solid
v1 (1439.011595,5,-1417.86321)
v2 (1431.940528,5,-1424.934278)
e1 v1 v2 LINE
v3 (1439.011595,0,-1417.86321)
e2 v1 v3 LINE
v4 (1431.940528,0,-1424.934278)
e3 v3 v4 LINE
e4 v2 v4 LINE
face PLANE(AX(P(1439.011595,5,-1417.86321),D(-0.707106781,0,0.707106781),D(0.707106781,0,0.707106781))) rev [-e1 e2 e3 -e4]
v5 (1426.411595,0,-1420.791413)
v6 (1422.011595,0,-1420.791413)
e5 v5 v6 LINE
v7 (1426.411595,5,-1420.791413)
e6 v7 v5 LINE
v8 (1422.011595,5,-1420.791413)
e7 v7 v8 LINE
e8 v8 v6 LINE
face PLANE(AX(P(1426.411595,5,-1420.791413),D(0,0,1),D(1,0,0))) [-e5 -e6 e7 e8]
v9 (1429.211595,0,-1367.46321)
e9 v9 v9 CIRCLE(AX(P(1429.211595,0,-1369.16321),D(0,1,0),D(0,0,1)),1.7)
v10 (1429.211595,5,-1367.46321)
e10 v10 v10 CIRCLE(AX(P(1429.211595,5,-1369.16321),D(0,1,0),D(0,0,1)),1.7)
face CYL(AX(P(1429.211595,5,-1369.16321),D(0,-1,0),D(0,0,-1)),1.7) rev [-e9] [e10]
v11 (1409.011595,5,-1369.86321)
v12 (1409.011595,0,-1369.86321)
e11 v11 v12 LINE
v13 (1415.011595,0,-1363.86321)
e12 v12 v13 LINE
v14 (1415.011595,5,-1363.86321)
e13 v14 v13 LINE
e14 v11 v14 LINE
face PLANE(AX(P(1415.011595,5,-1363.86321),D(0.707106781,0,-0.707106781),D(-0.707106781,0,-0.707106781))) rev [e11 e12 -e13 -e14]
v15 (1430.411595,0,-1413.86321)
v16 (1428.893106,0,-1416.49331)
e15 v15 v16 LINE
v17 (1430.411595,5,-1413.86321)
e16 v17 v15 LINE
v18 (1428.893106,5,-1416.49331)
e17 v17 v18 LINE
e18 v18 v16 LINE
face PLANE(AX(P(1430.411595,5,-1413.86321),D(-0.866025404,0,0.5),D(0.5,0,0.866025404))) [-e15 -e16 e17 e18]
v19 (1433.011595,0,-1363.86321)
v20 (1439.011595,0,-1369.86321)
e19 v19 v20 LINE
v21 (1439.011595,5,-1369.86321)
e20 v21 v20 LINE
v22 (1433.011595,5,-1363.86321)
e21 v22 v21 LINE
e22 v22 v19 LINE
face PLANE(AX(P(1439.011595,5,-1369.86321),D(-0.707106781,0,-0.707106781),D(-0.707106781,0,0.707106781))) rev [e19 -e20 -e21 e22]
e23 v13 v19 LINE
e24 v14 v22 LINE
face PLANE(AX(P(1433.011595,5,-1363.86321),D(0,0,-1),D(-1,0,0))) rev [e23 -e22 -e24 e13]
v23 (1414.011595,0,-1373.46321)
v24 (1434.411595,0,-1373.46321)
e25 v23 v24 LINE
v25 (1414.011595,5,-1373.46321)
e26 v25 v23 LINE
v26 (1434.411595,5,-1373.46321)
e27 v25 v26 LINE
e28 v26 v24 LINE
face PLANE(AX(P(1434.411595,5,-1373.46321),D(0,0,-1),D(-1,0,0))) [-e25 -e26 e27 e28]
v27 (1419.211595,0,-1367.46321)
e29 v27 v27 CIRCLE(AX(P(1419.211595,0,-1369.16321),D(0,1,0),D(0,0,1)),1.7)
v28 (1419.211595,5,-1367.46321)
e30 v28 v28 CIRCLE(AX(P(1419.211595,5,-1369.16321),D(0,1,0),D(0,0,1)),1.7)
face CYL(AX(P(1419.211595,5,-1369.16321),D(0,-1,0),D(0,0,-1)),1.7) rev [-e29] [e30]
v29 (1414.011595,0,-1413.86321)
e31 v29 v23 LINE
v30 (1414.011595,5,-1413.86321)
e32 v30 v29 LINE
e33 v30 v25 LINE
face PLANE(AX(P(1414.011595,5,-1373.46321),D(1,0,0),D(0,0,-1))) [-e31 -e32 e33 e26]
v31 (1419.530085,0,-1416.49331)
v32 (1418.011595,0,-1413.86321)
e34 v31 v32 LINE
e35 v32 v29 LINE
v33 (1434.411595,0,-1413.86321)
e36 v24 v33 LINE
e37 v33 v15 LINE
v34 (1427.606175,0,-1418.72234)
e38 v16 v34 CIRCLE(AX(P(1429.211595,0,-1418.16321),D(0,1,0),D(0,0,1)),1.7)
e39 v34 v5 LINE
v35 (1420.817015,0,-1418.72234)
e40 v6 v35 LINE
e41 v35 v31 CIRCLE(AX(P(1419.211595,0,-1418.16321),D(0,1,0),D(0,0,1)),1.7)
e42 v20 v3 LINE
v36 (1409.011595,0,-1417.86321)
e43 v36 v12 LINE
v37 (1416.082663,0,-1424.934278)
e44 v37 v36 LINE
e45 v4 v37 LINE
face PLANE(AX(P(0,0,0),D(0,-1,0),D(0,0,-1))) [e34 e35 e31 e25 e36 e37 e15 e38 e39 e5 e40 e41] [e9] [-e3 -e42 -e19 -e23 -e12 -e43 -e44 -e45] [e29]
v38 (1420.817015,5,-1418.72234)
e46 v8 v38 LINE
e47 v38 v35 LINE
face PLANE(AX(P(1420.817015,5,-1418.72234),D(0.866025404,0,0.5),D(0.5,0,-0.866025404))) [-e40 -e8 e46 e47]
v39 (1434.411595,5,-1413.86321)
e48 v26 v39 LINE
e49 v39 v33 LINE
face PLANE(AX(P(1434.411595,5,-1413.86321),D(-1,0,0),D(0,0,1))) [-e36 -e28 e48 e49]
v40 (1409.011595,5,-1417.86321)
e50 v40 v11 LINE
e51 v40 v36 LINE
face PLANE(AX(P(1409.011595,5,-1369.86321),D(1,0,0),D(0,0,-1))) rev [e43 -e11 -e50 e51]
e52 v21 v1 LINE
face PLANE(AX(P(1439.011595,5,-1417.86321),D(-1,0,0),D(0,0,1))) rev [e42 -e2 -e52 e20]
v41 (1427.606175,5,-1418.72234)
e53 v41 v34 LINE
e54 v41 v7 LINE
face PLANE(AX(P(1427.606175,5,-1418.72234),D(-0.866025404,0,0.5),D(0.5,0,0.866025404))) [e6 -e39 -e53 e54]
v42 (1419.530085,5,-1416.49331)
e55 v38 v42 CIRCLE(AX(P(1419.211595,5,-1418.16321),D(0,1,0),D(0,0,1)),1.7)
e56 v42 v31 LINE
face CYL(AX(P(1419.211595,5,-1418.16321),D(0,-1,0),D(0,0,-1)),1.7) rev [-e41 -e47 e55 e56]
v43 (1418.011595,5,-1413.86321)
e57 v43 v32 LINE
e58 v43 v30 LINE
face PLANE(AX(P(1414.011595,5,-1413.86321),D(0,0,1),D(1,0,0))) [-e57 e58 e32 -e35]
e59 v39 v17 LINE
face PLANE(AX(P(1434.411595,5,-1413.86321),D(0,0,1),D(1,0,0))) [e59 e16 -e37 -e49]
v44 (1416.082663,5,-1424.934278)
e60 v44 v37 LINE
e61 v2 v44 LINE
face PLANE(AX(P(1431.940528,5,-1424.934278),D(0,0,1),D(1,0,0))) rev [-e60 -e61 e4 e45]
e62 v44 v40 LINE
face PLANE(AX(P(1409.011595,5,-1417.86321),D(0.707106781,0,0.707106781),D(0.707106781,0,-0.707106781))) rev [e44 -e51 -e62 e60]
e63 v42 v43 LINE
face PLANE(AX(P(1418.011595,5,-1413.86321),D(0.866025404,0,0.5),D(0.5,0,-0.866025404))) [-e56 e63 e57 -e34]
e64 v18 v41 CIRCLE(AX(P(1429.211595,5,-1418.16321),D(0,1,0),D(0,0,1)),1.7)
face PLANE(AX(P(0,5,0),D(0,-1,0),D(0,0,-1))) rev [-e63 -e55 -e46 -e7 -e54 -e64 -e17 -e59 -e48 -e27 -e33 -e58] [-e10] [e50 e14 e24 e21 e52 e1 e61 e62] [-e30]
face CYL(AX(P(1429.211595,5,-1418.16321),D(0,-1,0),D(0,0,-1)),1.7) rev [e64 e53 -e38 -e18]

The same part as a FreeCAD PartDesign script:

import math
import FreeCAD as App
import Part
import Sketcher
from FreeCAD import Vector
Q = App.Units.Quantity

doc = App.newDocument("Part")
body = doc.addObject("PartDesign::Body", "Body")

sketch1 = body.newObject("Sketcher::SketchObject", "Sketch")
sketch1.AttachmentSupport = (doc.getObject("XZ_Plane"), [""])
sketch1.MapMode = "FlatFace"
sketch1.addGeometry([
    Part.LineSegment(Vector(1439, -1369.9, 0), Vector(1439, -1417.9, 0)),
    Part.LineSegment(Vector(1439, -1417.9, 0), Vector(1431.9, -1424.9, 0)),
    Part.LineSegment(Vector(1431.9, -1424.9, 0), Vector(1416.1, -1424.9, 0)),
    Part.LineSegment(Vector(1416.1, -1424.9, 0), Vector(1409, -1417.9, 0)),
    Part.LineSegment(Vector(1409, -1417.9, 0), Vector(1409, -1369.9, 0)),
    Part.LineSegment(Vector(1409, -1369.9, 0), Vector(1415, -1363.9, 0)),
    Part.LineSegment(Vector(1415, -1363.9, 0), Vector(1433, -1363.9, 0)),
    Part.LineSegment(Vector(1433, -1363.9, 0), Vector(1439, -1369.9, 0)),
    Part.Circle(Vector(1429.2, -1369.2, 0), Vector(0, 0, 1), 1.7),
    Part.Circle(Vector(1419.2, -1369.2, 0), Vector(0, 0, 1), 1.7),
    Part.LineSegment(Vector(1434.4, -1413.9, 0), Vector(1434.4, -1373.5, 0)),
    Part.LineSegment(Vector(1434.4, -1373.5, 0), Vector(1414, -1373.5, 0)),
    Part.LineSegment(Vector(1414, -1373.5, 0), Vector(1414, -1413.9, 0)),
    Part.LineSegment(Vector(1414, -1413.9, 0), Vector(1418, -1413.9, 0)),
    Part.LineSegment(Vector(1418, -1413.9, 0), Vector(1419.5, -1416.5, 0)),
    Part.ArcOfCircle(Part.Circle(Vector(1419.2, -1418.2, 0), Vector(0, 0, 1), 1.7), math.radians(79), math.radians(341)),
    Part.LineSegment(Vector(1420.8, -1418.7, 0), Vector(1422, -1420.8, 0)),
    Part.LineSegment(Vector(1422, -1420.8, 0), Vector(1426.4, -1420.8, 0)),
    Part.LineSegment(Vector(1426.4, -1420.8, 0), Vector(1427.6, -1418.7, 0)),
    Part.ArcOfCircle(Part.Circle(Vector(1429.2, -1418.2, 0), Vector(0, 0, 1), 1.7), math.radians(-161), math.radians(101)),
    Part.LineSegment(Vector(1428.9, -1416.5, 0), Vector(1430.4, -1413.9, 0)),
    Part.LineSegment(Vector(1430.4, -1413.9, 0), Vector(1434.4, -1413.9, 0)),
], False)
sketch1.addConstraint([
    Sketcher.Constraint("Coincident", 0, 2, 1, 1),
    Sketcher.Constraint("Coincident", 1, 2, 2, 1),
    Sketcher.Constraint("Coincident", 2, 2, 3, 1),
    Sketcher.Constraint("Coincident", 3, 2, 4, 1),
    Sketcher.Constraint("Coincident", 4, 2, 5, 1),
    Sketcher.Constraint("Coincident", 5, 2, 6, 1),
    Sketcher.Constraint("Coincident", 6, 2, 7, 1),
    Sketcher.Constraint("Coincident", 7, 2, 0, 1),
    Sketcher.Constraint("Coincident", 10, 2, 11, 1),
    Sketcher.Constraint("Coincident", 11, 2, 12, 1),
    Sketcher.Constraint("Coincident", 12, 2, 13, 1),
    Sketcher.Constraint("Coincident", 13, 2, 14, 1),
    Sketcher.Constraint("Coincident", 14, 2, 15, 1),
    Sketcher.Constraint("Coincident", 15, 2, 16, 1),
    Sketcher.Constraint("Coincident", 16, 2, 17, 1),
    Sketcher.Constraint("Coincident", 17, 2, 18, 1),
    Sketcher.Constraint("Coincident", 18, 2, 19, 1),
    Sketcher.Constraint("Coincident", 19, 2, 20, 1),
    Sketcher.Constraint("Coincident", 20, 2, 21, 1),
    Sketcher.Constraint("Coincident", 21, 2, 10, 1),
    Sketcher.Constraint("Vertical", 0),
    Sketcher.Constraint("Horizontal", 2),
    Sketcher.Constraint("Vertical", 4),
    Sketcher.Constraint("Horizontal", 6),
    Sketcher.Constraint("Vertical", 10),
    Sketcher.Constraint("Horizontal", 11),
    Sketcher.Constraint("Vertical", 12),
    Sketcher.Constraint("Horizontal", 13),
    Sketcher.Constraint("Horizontal", 17),
    Sketcher.Constraint("Horizontal", 21),
    Sketcher.Constraint("Equal", 8, 9),
    Sketcher.Constraint("Equal", 9, 15),
    Sketcher.Constraint("Equal", 15, 19),
    Sketcher.Constraint("Perpendicular", 1, 3),
    Sketcher.Constraint("Perpendicular", 3, 5),
    Sketcher.Constraint("Perpendicular", 5, 7),
    Sketcher.Constraint("Parallel", 14, 16),
    Sketcher.Constraint("Parallel", 18, 20),
    Sketcher.Constraint("Horizontal", 8, 3, 9, 3),
    Sketcher.Constraint("Horizontal", 15, 3, 19, 3),
    Sketcher.Constraint("Horizontal", 0, 2, 3, 2),
    Sketcher.Constraint("Horizontal", 4, 2, 7, 2),
    Sketcher.Constraint("Horizontal", 15, 2, 18, 2),
    Sketcher.Constraint("Horizontal", 14, 2, 19, 2),
    Sketcher.Constraint("Horizontal", 13, 2, 20, 2),
    Sketcher.Constraint("Vertical", 9, 3, 15, 3),
    Sketcher.Constraint("Vertical", 8, 3, 19, 3),
    Sketcher.Constraint("Equal", 13, 21),
    Sketcher.Constraint("Equal", 1, 3),
    Sketcher.Constraint("Equal", 16, 18),
    Sketcher.Constraint("Diameter", 8, Q("3.4 mm")),
    Sketcher.Constraint("DistanceX", 6, 1, 6, 2, Q("18 mm")),
    Sketcher.Constraint("DistanceX", 13, 1, 13, 2, Q("4 mm")),
    Sketcher.Constraint("DistanceY", 0, 2, 0, 1, Q("48 mm")),
    Sketcher.Constraint("Angle", 14, Q("-60 deg")),
    Sketcher.Constraint("Distance", 1, Q("10 mm")),
    Sketcher.Constraint("DistanceX", 11, 2, 11, 1, Q("20.4 mm")),
    Sketcher.Constraint("DistanceX", 17, 1, 17, 2, Q("4.4 mm")),
    Sketcher.Constraint("DistanceY", 10, 1, 10, 2, Q("40.4 mm")),
    Sketcher.Constraint("DistanceX", 9, 3, 8, 3, Q("10 mm")),
    Sketcher.Constraint("DistanceY", 15, 3, 9, 3, Q("49 mm")),
    Sketcher.Constraint("DistanceX", 3, 2, 0, 2, Q("30 mm")),
    Sketcher.Constraint("DistanceX", 4, 2, 11, 2, Q("5 mm")),
    Sketcher.Constraint("DistanceY", 3, 2, 12, 2, Q("4 mm")),
    Sketcher.Constraint("DistanceY", 19, 3, 0, 2, Q("0.3 mm")),
    Sketcher.Constraint("Distance", 16, Q("2.38916 mm")),
    Sketcher.Constraint("DistanceY", 8, 3, -1, 1, Q("1369.16321 mm")),
    Sketcher.Constraint("DistanceX", -1, 1, 8, 3, Q("1429.211595 mm")),
])
pad1 = body.newObject("PartDesign::Pad", "Pad")
pad1.Profile = sketch1
pad1.Length = 5
pad1.Reversed = True

doc.recompute()
